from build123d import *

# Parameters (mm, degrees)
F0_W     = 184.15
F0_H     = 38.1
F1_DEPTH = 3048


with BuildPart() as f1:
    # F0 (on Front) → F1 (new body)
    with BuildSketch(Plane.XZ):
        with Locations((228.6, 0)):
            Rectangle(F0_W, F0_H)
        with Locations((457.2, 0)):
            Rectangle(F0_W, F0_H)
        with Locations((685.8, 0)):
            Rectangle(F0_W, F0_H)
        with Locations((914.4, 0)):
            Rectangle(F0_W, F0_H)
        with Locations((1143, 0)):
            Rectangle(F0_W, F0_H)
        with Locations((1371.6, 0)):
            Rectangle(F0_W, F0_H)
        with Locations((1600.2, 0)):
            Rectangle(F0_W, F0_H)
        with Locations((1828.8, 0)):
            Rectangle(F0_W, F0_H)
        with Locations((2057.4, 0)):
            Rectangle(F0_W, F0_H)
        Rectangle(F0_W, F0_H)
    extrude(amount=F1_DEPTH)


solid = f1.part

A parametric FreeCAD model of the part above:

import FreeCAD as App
import Part
import Sketcher

V = App.Vector
Q = App.Units.Quantity


def add_polygon(sketch, points):
    """Adds a closed chain of lines whose ends are joined by coincident constraints."""
    first, n = sketch.GeometryCount, len(points)
    for a, b in zip(points, points[1:] + points[:1]):
        sketch.addGeometry(Part.LineSegment(App.Vector(*a, 0), App.Vector(*b, 0)), False)
    for i in range(n):
        sketch.addConstraint(Sketcher.Constraint("Coincident", first + i, 2, first + (i + 1) % n, 1))

doc = App.newDocument("Part")
body = doc.addObject("PartDesign::Body", "Body")
body.AllowCompound = True

sketch1 = body.newObject("Sketcher::SketchObject", "Sketch")
sketch1.AttachmentSupport = (doc.getObject("XZ_Plane"), [""])
sketch1.MapMode = "FlatFace"
add_polygon(sketch1, [(137, 19), (137, -19), (321, -19), (321, 19)])
add_polygon(sketch1, [(365, 19), (365, -19), (549, -19), (549, 19)])
add_polygon(sketch1, [(594, 19), (594, -19), (778, -19), (778, 19)])
add_polygon(sketch1, [(822, 19), (822, -19), (1006, -19), (1006, 19)])
add_polygon(sketch1, [(1051, 19), (1051, -19), (1235, -19), (1235, 19)])
add_polygon(sketch1, [(1280, 19), (1280, -19), (1464, -19), (1464, 19)])
add_polygon(sketch1, [(1508, 19), (1508, -19), (1692, -19), (1692, 19)])
add_polygon(sketch1, [(1737, 19), (1737, -19), (1921, -19), (1921, 19)])
add_polygon(sketch1, [(1965, 19), (1965, -19), (2149, -19), (2149, 19)])
add_polygon(sketch1, [(-92, 19), (-92, -19), (92, -19), (92, 19)])
sketch1.addConstraint([
    Sketcher.Constraint("Vertical", 0),
    Sketcher.Constraint("Horizontal", 1),
    Sketcher.Constraint("Vertical", 2),
    Sketcher.Constraint("Horizontal", 3),
    Sketcher.Constraint("Vertical", 4),
    Sketcher.Constraint("Horizontal", 5),
    Sketcher.Constraint("Vertical", 6),
    Sketcher.Constraint("Horizontal", 7),
    Sketcher.Constraint("Vertical", 8),
    Sketcher.Constraint("Horizontal", 9),
    Sketcher.Constraint("Vertical", 10),
    Sketcher.Constraint("Horizontal", 11),
    Sketcher.Constraint("Vertical", 12),
    Sketcher.Constraint("Horizontal", 13),
    Sketcher.Constraint("Vertical", 14),
    Sketcher.Constraint("Horizontal", 15),
    Sketcher.Constraint("Vertical", 16),
    Sketcher.Constraint("Horizontal", 17),
    Sketcher.Constraint("Vertical", 18),
    Sketcher.Constraint("Horizontal", 19),
    Sketcher.Constraint("Vertical", 20),
    Sketcher.Constraint("Horizontal", 21),
    Sketcher.Constraint("Vertical", 22),
    Sketcher.Constraint("Horizontal", 23),
    Sketcher.Constraint("Vertical", 24),
    Sketcher.Constraint("Horizontal", 25),
    Sketcher.Constraint("Vertical", 26),
    Sketcher.Constraint("Horizontal", 27),
    Sketcher.Constraint("Vertical", 28),
    Sketcher.Constraint("Horizontal", 29),
    Sketcher.Constraint("Vertical", 30),
    Sketcher.Constraint("Horizontal", 31),
    Sketcher.Constraint("Vertical", 32),
    Sketcher.Constraint("Horizontal", 33),
    Sketcher.Constraint("Vertical", 34),
    Sketcher.Constraint("Horizontal", 35),
    Sketcher.Constraint("Vertical", 36),
    Sketcher.Constraint("Horizontal", 37),
    Sketcher.Constraint("Vertical", 38),
    Sketcher.Constraint("Horizontal", 39),
    Sketcher.Constraint("Symmetric", 36, 2, 38, 2, -1, 1),
    Sketcher.Constraint("Horizontal", 1, 2, 4, 2),
    Sketcher.Constraint("Horizontal", 3, 2, 6, 2),
    Sketcher.Constraint("Horizontal", 5, 2, 8, 2),
    Sketcher.Constraint("Horizontal", 7, 2, 10, 2),
    Sketcher.Constraint("Horizontal", 9, 2, 12, 2),
    Sketcher.Constraint("Horizontal", 11, 2, 14, 2),
    Sketcher.Constraint("Horizontal", 13, 2, 16, 2),
    Sketcher.Constraint("Horizontal", 15, 2, 18, 2),
    Sketcher.Constraint("Horizontal", 17, 2, 20, 2),
    Sketcher.Constraint("Horizontal", 19, 2, 22, 2),
    Sketcher.Constraint("Horizontal", 21, 2, 24, 2),
    Sketcher.Constraint("Horizontal", 23, 2, 26, 2),
    Sketcher.Constraint("Horizontal", 25, 2, 28, 2),
    Sketcher.Constraint("Horizontal", 27, 2, 30, 2),
    Sketcher.Constraint("Horizontal", 29, 2, 32, 2),
    Sketcher.Constraint("Horizontal", 31, 2, 34, 2),
    Sketcher.Constraint("Horizontal", 33, 2, 36, 2),
    Sketcher.Constraint("Horizontal", 35, 2, 38, 2),
    Sketcher.Constraint("Equal", 3, 5),
    Sketcher.Constraint("Equal", 7, 9),
    Sketcher.Constraint("Equal", 11, 13),
    Sketcher.Constraint("Equal", 15, 17),
    Sketcher.Constraint("Equal", 19, 21),
    Sketcher.Constraint("Equal", 23, 25),
    Sketcher.Constraint("Equal", 27, 29),
    Sketcher.Constraint("Equal", 31, 33),
    Sketcher.Constraint("Equal", 35, 37),
    Sketcher.Constraint("DistanceY", 0, 2, 0, 1, Q("1.5 in")),
    Sketcher.Constraint("DistanceX", 0, 2, 4, 2, Q("9 in")),
    Sketcher.Constraint("DistanceX", 4, 2, 8, 2, Q("9 in")),
    Sketcher.Constraint("DistanceX", 8, 2, 12, 2, Q("9 in")),
    Sketcher.Constraint("DistanceX", 12, 2, 16, 2, Q("9 in")),
    Sketcher.Constraint("DistanceX", 16, 2, 20, 2, Q("9 in")),
    Sketcher.Constraint("DistanceX", 20, 2, 24, 2, Q("9 in")),
    Sketcher.Constraint("DistanceX", 24, 2, 28, 2, Q("9 in")),
    Sketcher.Constraint("DistanceX", 28, 2, 32, 2, Q("9 in")),
    Sketcher.Constraint("DistanceX", 36, 2, 0, 2, Q("9 in")),
    Sketcher.Constraint("DistanceX", 1, 1, 1, 2, Q("7.25 in")),
])
pad1 = body.newObject("PartDesign::Pad", "Pad")
pad1.Profile = sketch1
pad1.Length = Q("120 in")

doc.recompute()
